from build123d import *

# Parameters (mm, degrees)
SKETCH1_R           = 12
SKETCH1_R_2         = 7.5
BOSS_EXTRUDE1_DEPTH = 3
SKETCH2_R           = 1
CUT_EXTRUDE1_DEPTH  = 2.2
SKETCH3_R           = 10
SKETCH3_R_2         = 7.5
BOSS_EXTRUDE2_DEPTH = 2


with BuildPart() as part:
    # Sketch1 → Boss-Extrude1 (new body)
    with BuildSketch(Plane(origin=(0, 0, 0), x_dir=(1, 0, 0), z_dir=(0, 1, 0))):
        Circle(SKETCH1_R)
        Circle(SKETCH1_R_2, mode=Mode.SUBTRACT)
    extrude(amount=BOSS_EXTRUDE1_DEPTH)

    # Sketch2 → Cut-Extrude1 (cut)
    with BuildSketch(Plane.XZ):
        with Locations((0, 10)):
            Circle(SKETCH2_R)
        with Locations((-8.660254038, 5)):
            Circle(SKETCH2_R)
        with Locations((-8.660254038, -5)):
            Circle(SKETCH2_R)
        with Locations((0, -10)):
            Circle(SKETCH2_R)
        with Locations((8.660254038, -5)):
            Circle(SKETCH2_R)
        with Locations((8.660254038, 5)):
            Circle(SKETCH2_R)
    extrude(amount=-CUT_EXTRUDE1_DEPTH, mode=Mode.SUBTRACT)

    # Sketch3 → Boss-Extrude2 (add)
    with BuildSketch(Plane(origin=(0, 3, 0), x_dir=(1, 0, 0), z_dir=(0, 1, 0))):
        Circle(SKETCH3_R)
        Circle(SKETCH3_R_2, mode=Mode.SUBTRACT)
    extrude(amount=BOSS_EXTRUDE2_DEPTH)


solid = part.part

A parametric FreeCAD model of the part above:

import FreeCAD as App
import Part
import Sketcher
Q = App.Units.Quantity

doc = App.newDocument("Part")
body = doc.addObject("PartDesign::Body", "Body")

# Sketch on XZ plane
sketch1 = body.newObject("Sketcher::SketchObject", "Sketch")
sketch1.AttachmentSupport = (doc.getObject("XZ_Plane"), [""])
sketch1.MapMode = "FlatFace"
sketch1.addGeometry(Part.Circle(App.Vector(0, 0, 0), App.Vector(0, 0, 1), 12), False)
sketch1.addGeometry(Part.Circle(App.Vector(0, 0, 0), App.Vector(0, 0, 1), 8), False)
sketch1.addConstraint(Sketcher.Constraint("Coincident", 0, 3, -1, 1))
sketch1.addConstraint(Sketcher.Constraint("Coincident", 1, 3, -1, 1))
sketch1.addConstraint(Sketcher.Constraint("Diameter", 0, Q("24 mm")))
sketch1.addConstraint(Sketcher.Constraint("Diameter", 1, Q("15 mm")))
pad1 = body.newObject("PartDesign::Pad", "Pad")
pad1.Profile = sketch1
pad1.Length = 3
pad1.Reversed = True

# Sketch on XZ plane
sketch2 = body.newObject("Sketcher::SketchObject", "Sketch001")
sketch2.AttachmentSupport = (doc.getObject("XZ_Plane"), [""])
sketch2.MapMode = "FlatFace"
sketch2.addGeometry(Part.Circle(App.Vector(0, 10, 0), App.Vector(0, 0, 1), 1), False)
sketch2.addGeometry(Part.Circle(App.Vector(-8.7, 5, 0), App.Vector(0, 0, 1), 1), False)
sketch2.addGeometry(Part.Circle(App.Vector(-8.7, -5, 0), App.Vector(0, 0, 1), 1), False)
sketch2.addGeometry(Part.Circle(App.Vector(0, -10, 0), App.Vector(0, 0, 1), 1), False)
sketch2.addGeometry(Part.Circle(App.Vector(8.7, -5, 0), App.Vector(0, 0, 1), 1), False)
sketch2.addGeometry(Part.Circle(App.Vector(8.7, 5, 0), App.Vector(0, 0, 1), 1), False)
sketch2.addConstraint(Sketcher.Constraint("Equal", 0, 1))
sketch2.addConstraint(Sketcher.Constraint("Equal", 1, 2))
sketch2.addConstraint(Sketcher.Constraint("Equal", 2, 3))
sketch2.addConstraint(Sketcher.Constraint("Equal", 3, 4))
sketch2.addConstraint(Sketcher.Constraint("Equal", 4, 5))
sketch2.addConstraint(Sketcher.Constraint("Symmetric", 0, 3, 3, 3, -1, 1))
sketch2.addConstraint(Sketcher.Constraint("Symmetric", 1, 3, 4, 3, -1, 1))
sketch2.addConstraint(Sketcher.Constraint("Symmetric", 2, 3, 5, 3, -1, 1))
sketch2.addConstraint(Sketcher.Constraint("Symmetric", 2, 3, 4, 3, -2))
sketch2.addConstraint(Sketcher.Constraint("PointOnObject", 0, 3, -2))
sketch2.addConstraint(Sketcher.Constraint("Diameter", 0, Q("2 mm")))
sketch2.addConstraint(Sketcher.Constraint("DistanceY", -1, 1, 0, 3, Q("10 mm")))
sketch2.addConstraint(Sketcher.Constraint("DistanceY", -1, 1, 1, 3, Q("5 mm")))
sketch2.addConstraint(Sketcher.Constraint("DistanceX", 2, 3, 4, 3, Q("17.320508 mm")))
pocket1 = body.newObject("PartDesign::Pocket", "Pocket")
pocket1.Profile = sketch2
pocket1.Length = 2.2

# Sketch on XZ plane
sketch3 = body.newObject("Sketcher::SketchObject", "Sketch002")
sketch3.AttachmentSupport = (doc.getObject("XZ_Plane"), [""])
sketch3.MapMode = "FlatFace"
sketch3.AttachmentOffset = App.Placement(App.Vector(0, 0, -3), App.Rotation())
sketch3.addGeometry(Part.Circle(App.Vector(0, 0, 0), App.Vector(0, 0, 1), 10), False)
sketch3.addGeometry(Part.Circle(App.Vector(0, 0, 0), App.Vector(0, 0, 1), 8), False)
sketch3.addConstraint(Sketcher.Constraint("Coincident", 0, 3, -1, 1))
sketch3.addConstraint(Sketcher.Constraint("Coincident", 1, 3, -1, 1))
sketch3.addConstraint(Sketcher.Constraint("Diameter", 0, Q("20 mm")))
sketch3.addConstraint(Sketcher.Constraint("Diameter", 1, Q("15 mm")))
pad2 = body.newObject("PartDesign::Pad", "Pad001")
pad2.Profile = sketch3
pad2.Length = 2
pad2.Reversed = True

doc.recompute()
